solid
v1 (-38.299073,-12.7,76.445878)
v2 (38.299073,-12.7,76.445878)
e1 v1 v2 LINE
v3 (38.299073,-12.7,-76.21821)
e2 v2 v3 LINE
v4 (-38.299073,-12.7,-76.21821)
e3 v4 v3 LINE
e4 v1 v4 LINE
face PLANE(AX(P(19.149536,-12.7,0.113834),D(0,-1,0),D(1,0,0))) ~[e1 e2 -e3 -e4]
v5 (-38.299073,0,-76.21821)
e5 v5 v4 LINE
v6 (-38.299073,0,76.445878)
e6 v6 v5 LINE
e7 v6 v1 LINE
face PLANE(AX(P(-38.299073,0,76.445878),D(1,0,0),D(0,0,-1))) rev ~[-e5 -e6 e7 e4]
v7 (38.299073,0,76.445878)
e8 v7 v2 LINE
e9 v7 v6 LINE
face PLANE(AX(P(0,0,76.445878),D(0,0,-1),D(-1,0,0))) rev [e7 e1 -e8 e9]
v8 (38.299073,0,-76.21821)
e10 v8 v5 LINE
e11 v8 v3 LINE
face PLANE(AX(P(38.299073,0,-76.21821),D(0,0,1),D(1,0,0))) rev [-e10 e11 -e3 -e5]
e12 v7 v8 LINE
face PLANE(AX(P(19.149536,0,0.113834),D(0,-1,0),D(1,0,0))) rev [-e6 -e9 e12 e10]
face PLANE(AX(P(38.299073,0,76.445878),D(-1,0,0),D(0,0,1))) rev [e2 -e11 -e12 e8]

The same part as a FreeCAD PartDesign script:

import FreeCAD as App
import Part
import Sketcher
from FreeCAD import Vector

doc = App.newDocument("Part")
params = doc.addObject("Spreadsheet::Sheet", "Params")
for row, (alias, value) in enumerate([
    ("pad1_length", "0.5 in"),
], start=1):
    params.set(f"A{row}", alias)
    params.set(f"B{row}", "=" + value)
    params.setAlias(f"B{row}", alias)

body = doc.addObject("PartDesign::Body", "Body")

sketch1 = body.newObject("Sketcher::SketchObject", "Sketch")
sketch1.AttachmentSupport = (doc.getObject("XZ_Plane"), [""])
sketch1.MapMode = "FlatFace"
sketch1.addGeometry([
    Part.LineSegment(Vector(0, -76.21821, 0), Vector(0, 76.445878, 0)),
    Part.LineSegment(Vector(0, 76.445878, 0), Vector(-38.299073, 76.445878, 0)),
    Part.LineSegment(Vector(-38.299073, 76.445878, 0), Vector(-38.299073, -76.21821, 0)),
    Part.LineSegment(Vector(-38.299073, -76.21821, 0), Vector(0, -76.21821, 0)),
], False)
sketch1.addConstraint([
    Sketcher.Constraint("Coincident", 0, 2, 1, 1),
    Sketcher.Constraint("Coincident", 1, 2, 2, 1),
    Sketcher.Constraint("Coincident", 2, 2, 3, 1),
    Sketcher.Constraint("Coincident", 3, 2, 0, 1),
    Sketcher.Constraint("Vertical", 0),
    Sketcher.Constraint("Horizontal", 1),
    Sketcher.Constraint("Vertical", 2),
    Sketcher.Constraint("Horizontal", 3),
    Sketcher.Constraint("PointOnObject", 0, 2, -2),
    Sketcher.Constraint("DistanceY", 0, 1, 0, 2, 152.664088),
    Sketcher.Constraint("DistanceX", 1, 2, 1, 1, 38.299073),
    Sketcher.Constraint("DistanceY", 2, 2, -1, 1, 76.21821),
])
pad1 = body.newObject("PartDesign::Pad", "Pad")
pad1.Profile = sketch1
pad1.setExpression("Length", "Params.pad1_length")
body2 = doc.addObject("PartDesign::Body", "Body001")
doc.recompute()

body2.BaseFeature = body
doc.recompute()

mirroring = doc.addObject("Part::Mirroring", "Mirroring")
mirroring.Source = body
mirroring.Base = Vector(0, 0, 0)
mirroring.Normal = Vector(1, 0, 0)
body3 = doc.addObject("PartDesign::Body", "Body002")
body3.BaseFeature = mirroring
boolean = body2.newObject("PartDesign::Boolean", "Boolean")
boolean.Type = "Fuse"
boolean.addObjects([body3])
doc.recompute()
mirroring.Visibility = False

doc.recompute()
